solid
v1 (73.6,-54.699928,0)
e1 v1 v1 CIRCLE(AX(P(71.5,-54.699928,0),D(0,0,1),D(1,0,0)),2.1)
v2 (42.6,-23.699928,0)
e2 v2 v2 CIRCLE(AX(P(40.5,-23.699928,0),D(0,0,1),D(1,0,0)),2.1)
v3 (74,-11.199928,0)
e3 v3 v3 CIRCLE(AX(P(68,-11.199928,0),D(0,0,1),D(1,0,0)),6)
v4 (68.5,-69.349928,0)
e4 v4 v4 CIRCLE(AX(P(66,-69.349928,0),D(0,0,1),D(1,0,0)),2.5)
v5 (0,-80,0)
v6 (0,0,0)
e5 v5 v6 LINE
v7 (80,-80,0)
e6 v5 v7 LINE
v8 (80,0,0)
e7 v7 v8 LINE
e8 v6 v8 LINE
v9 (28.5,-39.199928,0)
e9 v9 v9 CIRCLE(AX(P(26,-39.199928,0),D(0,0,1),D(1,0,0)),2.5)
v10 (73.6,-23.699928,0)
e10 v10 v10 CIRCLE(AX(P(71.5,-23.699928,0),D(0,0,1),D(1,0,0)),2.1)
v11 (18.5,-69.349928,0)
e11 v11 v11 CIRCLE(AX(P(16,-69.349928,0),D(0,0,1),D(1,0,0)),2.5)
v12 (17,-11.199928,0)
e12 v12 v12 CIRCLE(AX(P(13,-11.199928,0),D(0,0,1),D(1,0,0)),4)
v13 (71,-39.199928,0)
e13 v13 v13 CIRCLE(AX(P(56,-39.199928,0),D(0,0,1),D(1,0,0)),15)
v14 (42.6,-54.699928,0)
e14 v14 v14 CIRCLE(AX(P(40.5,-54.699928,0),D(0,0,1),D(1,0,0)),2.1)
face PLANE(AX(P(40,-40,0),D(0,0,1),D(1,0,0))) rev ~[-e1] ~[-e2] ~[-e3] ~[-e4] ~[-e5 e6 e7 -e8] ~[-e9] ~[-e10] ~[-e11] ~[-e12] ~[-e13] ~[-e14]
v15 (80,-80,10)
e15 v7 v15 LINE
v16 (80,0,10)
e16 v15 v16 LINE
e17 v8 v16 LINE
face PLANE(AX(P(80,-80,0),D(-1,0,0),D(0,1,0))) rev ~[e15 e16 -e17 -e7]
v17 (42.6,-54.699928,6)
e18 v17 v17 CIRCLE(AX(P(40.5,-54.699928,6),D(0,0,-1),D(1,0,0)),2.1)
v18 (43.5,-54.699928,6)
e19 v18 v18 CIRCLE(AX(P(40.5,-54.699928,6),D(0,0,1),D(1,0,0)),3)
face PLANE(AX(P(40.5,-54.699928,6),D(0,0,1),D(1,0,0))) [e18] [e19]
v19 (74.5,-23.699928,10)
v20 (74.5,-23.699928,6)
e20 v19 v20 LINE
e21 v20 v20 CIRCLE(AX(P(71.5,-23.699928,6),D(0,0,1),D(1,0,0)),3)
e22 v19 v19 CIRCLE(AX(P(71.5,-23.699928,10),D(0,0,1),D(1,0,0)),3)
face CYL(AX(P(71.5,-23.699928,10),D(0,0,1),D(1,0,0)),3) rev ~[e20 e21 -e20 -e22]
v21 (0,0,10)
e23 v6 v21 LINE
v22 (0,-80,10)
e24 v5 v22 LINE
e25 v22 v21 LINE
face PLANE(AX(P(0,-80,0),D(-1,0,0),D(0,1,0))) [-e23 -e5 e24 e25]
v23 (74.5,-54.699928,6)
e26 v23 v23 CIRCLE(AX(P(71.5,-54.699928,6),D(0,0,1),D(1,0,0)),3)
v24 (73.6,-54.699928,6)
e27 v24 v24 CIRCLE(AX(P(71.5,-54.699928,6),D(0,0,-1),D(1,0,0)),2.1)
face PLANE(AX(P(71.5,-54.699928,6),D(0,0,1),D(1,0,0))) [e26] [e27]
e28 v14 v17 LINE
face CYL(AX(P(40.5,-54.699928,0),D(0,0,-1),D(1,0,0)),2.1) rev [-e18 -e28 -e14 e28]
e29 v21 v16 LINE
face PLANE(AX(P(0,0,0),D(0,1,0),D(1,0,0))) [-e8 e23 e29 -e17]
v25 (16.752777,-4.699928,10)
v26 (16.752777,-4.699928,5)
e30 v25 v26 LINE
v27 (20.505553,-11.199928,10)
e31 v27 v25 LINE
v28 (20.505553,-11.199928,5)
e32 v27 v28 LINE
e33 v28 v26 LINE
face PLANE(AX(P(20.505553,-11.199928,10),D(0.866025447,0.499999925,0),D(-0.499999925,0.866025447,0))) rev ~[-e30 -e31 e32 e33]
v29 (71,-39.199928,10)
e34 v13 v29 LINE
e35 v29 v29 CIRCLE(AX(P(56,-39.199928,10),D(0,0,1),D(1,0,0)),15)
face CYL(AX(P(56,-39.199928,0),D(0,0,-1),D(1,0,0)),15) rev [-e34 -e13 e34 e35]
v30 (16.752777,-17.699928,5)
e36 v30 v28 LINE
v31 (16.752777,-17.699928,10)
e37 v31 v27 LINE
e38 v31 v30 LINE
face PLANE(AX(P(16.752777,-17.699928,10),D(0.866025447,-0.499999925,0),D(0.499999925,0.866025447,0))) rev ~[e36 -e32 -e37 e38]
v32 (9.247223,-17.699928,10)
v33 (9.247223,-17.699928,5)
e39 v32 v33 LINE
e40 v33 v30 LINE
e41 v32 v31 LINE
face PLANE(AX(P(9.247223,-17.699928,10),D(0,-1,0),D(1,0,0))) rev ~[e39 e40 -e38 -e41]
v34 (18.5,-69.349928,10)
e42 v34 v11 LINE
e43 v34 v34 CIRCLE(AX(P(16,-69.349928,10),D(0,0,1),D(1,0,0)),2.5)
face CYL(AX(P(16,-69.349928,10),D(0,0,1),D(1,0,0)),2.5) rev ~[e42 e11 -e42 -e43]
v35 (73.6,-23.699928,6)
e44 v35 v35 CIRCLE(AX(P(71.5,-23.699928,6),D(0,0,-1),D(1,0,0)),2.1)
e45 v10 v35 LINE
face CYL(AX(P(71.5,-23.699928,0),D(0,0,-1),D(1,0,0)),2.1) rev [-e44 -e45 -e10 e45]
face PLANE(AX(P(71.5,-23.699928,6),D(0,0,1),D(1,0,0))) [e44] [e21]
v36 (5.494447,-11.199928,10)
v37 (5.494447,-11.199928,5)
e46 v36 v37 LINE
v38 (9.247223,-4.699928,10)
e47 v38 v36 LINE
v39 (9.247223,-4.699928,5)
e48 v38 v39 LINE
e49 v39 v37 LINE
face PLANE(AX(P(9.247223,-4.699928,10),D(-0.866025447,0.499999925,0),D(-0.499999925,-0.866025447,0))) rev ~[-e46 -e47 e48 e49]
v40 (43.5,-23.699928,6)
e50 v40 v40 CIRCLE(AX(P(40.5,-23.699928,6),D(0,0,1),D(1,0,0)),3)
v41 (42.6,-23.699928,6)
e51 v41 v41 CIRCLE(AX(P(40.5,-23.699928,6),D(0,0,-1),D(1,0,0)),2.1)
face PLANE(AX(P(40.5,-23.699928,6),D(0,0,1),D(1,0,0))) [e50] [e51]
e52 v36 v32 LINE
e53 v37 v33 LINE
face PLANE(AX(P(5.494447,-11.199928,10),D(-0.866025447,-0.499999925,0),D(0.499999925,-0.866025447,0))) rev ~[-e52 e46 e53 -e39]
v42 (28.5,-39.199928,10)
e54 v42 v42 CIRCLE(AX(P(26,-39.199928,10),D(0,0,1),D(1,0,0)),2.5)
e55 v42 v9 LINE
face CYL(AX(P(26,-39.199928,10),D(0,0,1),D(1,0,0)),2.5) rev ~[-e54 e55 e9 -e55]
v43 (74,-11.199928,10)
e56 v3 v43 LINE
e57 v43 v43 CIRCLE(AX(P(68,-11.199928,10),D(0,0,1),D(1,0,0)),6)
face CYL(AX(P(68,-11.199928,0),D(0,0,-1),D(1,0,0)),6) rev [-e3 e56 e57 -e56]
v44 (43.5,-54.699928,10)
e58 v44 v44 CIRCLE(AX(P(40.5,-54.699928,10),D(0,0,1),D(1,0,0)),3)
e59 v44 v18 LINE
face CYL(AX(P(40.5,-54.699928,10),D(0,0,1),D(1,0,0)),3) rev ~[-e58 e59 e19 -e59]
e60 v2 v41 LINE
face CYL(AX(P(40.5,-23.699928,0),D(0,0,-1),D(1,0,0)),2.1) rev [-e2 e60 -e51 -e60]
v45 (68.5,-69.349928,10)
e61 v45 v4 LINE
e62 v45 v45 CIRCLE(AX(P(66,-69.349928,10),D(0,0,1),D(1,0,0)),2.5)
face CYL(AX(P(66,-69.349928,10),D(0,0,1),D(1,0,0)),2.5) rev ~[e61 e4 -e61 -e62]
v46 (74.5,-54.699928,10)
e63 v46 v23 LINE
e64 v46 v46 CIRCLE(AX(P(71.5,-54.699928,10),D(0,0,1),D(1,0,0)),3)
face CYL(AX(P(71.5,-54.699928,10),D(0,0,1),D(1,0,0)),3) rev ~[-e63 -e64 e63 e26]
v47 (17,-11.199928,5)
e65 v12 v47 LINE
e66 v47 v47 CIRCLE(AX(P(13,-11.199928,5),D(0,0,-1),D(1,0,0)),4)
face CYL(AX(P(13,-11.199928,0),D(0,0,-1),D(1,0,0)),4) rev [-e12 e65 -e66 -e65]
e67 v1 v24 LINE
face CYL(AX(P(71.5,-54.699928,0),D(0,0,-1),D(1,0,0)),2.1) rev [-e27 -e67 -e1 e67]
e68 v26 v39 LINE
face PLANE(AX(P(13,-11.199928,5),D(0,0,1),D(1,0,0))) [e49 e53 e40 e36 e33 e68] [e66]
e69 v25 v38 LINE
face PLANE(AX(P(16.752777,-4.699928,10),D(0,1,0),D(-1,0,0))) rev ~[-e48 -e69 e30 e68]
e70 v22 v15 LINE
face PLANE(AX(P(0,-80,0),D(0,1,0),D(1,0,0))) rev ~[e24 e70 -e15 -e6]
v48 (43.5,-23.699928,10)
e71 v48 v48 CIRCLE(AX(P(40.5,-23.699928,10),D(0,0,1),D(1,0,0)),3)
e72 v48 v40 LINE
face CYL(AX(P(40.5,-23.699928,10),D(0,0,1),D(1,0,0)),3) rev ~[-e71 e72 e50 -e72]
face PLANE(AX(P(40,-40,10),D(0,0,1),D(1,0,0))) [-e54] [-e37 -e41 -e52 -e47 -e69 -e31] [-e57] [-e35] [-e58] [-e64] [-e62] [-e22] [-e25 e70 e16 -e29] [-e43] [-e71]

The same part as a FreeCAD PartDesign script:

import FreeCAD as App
import Part
import Sketcher

V = App.Vector
Q = App.Units.Quantity

doc = App.newDocument("Part")
params = doc.addObject("Spreadsheet::Sheet", "Params")
for row, (alias, value) in enumerate([
    ("sketch1_diameter", "30 mm"),
    ("sketch1_diameter2", "8 mm"),
    ("sketch1_diameter3", "12 mm"),
    ("sketch1_diameter4", "4.2 mm"),
    ("sketch1_width", "80 mm"),
    ("pad1_length", "10 mm"),
    ("sketch2_diameter", "5 mm"),
    ("pocket1_length", "25 mm"),
    ("sketch3_diameter", "6 mm"),
    ("pocket2_length", "4 mm"),
    ("pocket3_length", "5 mm"),
], start=1):
    params.set(f"A{row}", alias)
    params.set(f"B{row}", "=" + value)
    params.setAlias(f"B{row}", alias)

body = doc.addObject("PartDesign::Body", "Body")

sketch1 = body.newObject("Sketcher::SketchObject", "Sketch")
sketch1.AttachmentSupport = (doc.getObject("XY_Plane"), [""])
sketch1.MapMode = "FlatFace"
sketch1.addGeometry([
    Part.LineSegment(V(0, 0, 0), V(0, -80, 0)),
    Part.LineSegment(V(0, -80, 0), V(80, -80, 0)),
    Part.LineSegment(V(80, -80, 0), V(80, 0, 0)),
    Part.LineSegment(V(80, 0, 0), V(0, 0, 0)),
    Part.Circle(V(40.5, -54.7, 0), V(0, 0, 1), 2.1),
    Part.Circle(V(71.5, -54.7, 0), V(0, 0, 1), 2.1),
    Part.Circle(V(56, -39.2, 0), V(0, 0, 1), 15),
    Part.Circle(V(40.5, -23.7, 0), V(0, 0, 1), 2.1),
    Part.Circle(V(13, -11.2, 0), V(0, 0, 1), 4),
    Part.Circle(V(71.5, -23.7, 0), V(0, 0, 1), 2.1),
    Part.Circle(V(68, -11.2, 0), V(0, 0, 1), 6),
], False)
sketch1.addConstraint([
    Sketcher.Constraint("Coincident", 0, 2, 1, 1),
    Sketcher.Constraint("Coincident", 1, 2, 2, 1),
    Sketcher.Constraint("Coincident", 2, 2, 3, 1),
    Sketcher.Constraint("Coincident", 3, 2, 0, 1),
    Sketcher.Constraint("Vertical", 0),
    Sketcher.Constraint("Horizontal", 1),
    Sketcher.Constraint("Vertical", 2),
    Sketcher.Constraint("Horizontal", 3),
    Sketcher.Constraint("Coincident", 3, 2, -1, 1),
    Sketcher.Constraint("Equal", 4, 5),
    Sketcher.Constraint("Equal", 5, 7),
    Sketcher.Constraint("Equal", 7, 9),
    Sketcher.Constraint("Horizontal", 4, 3, 5, 3),
    Sketcher.Constraint("Horizontal", 7, 3, 9, 3),
    Sketcher.Constraint("Horizontal", 8, 3, 10, 3),
    Sketcher.Constraint("Vertical", 4, 3, 7, 3),
    Sketcher.Constraint("Vertical", 5, 3, 9, 3),
    Sketcher.Constraint("Equal", 3, 0),
    Sketcher.Constraint("Diameter", 6, 30.0),
    Sketcher.Constraint("Diameter", 8, 8.0),
    Sketcher.Constraint("Diameter", 10, 12.0),
    Sketcher.Constraint("Diameter", 4, 4.2),
    Sketcher.Constraint("DistanceX", 1, 1, 1, 2, 80.0),
    Sketcher.Constraint("DistanceX", -1, 1, 6, 3, 56.0),
    Sketcher.Constraint("DistanceX", -1, 1, 8, 3, 13.0),
    Sketcher.Constraint("DistanceX", -1, 1, 10, 3, 68.0),
    Sketcher.Constraint("DistanceX", 4, 3, 5, 3, 31.0),
    Sketcher.Constraint("DistanceY", 4, 3, 7, 3, 31.0),
    Sketcher.Constraint("DistanceY", 6, 3, 8, 3, 28.0),
    Sketcher.Constraint("DistanceX", -1, 1, 4, 3, 40.5),
    Sketcher.Constraint("DistanceY", 4, 3, 6, 3, 15.5),
    Sketcher.Constraint("DistanceY", 7, 3, -1, 1, 23.699928),
])
sketch1.setExpression("Constraints[18]", "Params.sketch1_diameter")
sketch1.setExpression("Constraints[19]", "Params.sketch1_diameter2")
sketch1.setExpression("Constraints[20]", "Params.sketch1_diameter3")
sketch1.setExpression("Constraints[21]", "Params.sketch1_diameter4")
sketch1.setExpression("Constraints[22]", "Params.sketch1_width")
pad1 = body.newObject("PartDesign::Pad", "Pad")
pad1.Profile = sketch1
pad1.setExpression("Length", "Params.pad1_length")

sketch2 = body.newObject("Sketcher::SketchObject", "Sketch001")
sketch2.AttachmentSupport = (doc.getObject("XY_Plane"), [""])
sketch2.MapMode = "FlatFace"
sketch2.AttachmentOffset = App.Placement(V(0, 0, 10), App.Rotation())
sketch2.addGeometry([
    Part.Circle(V(26, -39.2, 0), V(0, 0, 1), 2.5),
    Part.Circle(V(16, -69.3, 0), V(0, 0, 1), 2.5),
    Part.Circle(V(66, -69.3, 0), V(0, 0, 1), 2.5),
], False)
sketch2.addConstraint([
    Sketcher.Constraint("Equal", 0, 1),
    Sketcher.Constraint("Equal", 1, 2),
    Sketcher.Constraint("Horizontal", 1, 3, 2, 3),
    Sketcher.Constraint("Diameter", 0, 5.0),
    Sketcher.Constraint("DistanceX", -1, 1, 0, 3, 26.0),
    Sketcher.Constraint("DistanceX", -1, 1, 1, 3, 16.0),
    Sketcher.Constraint("DistanceX", -1, 1, 2, 3, 66.0),
    Sketcher.Constraint("DistanceY", 1, 3, 0, 3, 30.15),
    Sketcher.Constraint("DistanceY", 1, 3, -1, 1, 69.349928),
])
sketch2.setExpression("Constraints[3]", "Params.sketch2_diameter")
pocket1 = body.newObject("PartDesign::Pocket", "Pocket")
pocket1.Profile = sketch2
pocket1.setExpression("Length", "Params.pocket1_length")

sketch3 = body.newObject("Sketcher::SketchObject", "Sketch002")
sketch3.AttachmentSupport = (doc.getObject("XY_Plane"), [""])
sketch3.MapMode = "FlatFace"
sketch3.AttachmentOffset = App.Placement(V(0, 0, 10), App.Rotation())
sketch3.addGeometry([
    Part.Circle(V(40.5, -23.7, 0), V(0, 0, 1), 3),
    Part.Circle(V(71.5, -23.7, 0), V(0, 0, 1), 3),
    Part.Circle(V(40.5, -54.7, 0), V(0, 0, 1), 3),
    Part.Circle(V(71.5, -54.7, 0), V(0, 0, 1), 3),
], False)
sketch3.addConstraint([
    Sketcher.Constraint("Equal", 0, 1),
    Sketcher.Constraint("Equal", 1, 2),
    Sketcher.Constraint("Equal", 2, 3),
    Sketcher.Constraint("Horizontal", 0, 3, 1, 3),
    Sketcher.Constraint("Horizontal", 2, 3, 3, 3),
    Sketcher.Constraint("Vertical", 0, 3, 2, 3),
    Sketcher.Constraint("Vertical", 1, 3, 3, 3),
    Sketcher.Constraint("Diameter", 0, 6.0),
    Sketcher.Constraint("DistanceX", 0, 3, 1, 3, 31.0),
    Sketcher.Constraint("DistanceY", 2, 3, 0, 3, 31.0),
    Sketcher.Constraint("DistanceX", -1, 1, 0, 3, 40.5),
    Sketcher.Constraint("DistanceY", 0, 3, -1, 1, 23.699928),
])
sketch3.setExpression("Constraints[7]", "Params.sketch3_diameter")
pocket2 = body.newObject("PartDesign::Pocket", "Pocket001")
pocket2.Profile = sketch3
pocket2.setExpression("Length", "Params.pocket2_length")

sketch4 = body.newObject("Sketcher::SketchObject", "Sketch003")
sketch4.AttachmentSupport = (doc.getObject("XY_Plane"), [""])
sketch4.MapMode = "FlatFace"
sketch4.AttachmentOffset = App.Placement(V(0, 0, 10), App.Rotation())
sketch4.addGeometry([
    Part.LineSegment(V(17, -5, 0), V(9, -5, 0)),
    Part.LineSegment(V(9, -5, 0), V(5, -11, 0)),
    Part.LineSegment(V(5, -11, 0), V(9, -18, 0)),
    Part.LineSegment(V(9, -18, 0), V(17, -18, 0)),
    Part.LineSegment(V(17, -18, 0), V(21, -11, 0)),
    Part.LineSegment(V(21, -11, 0), V(17, -5, 0)),
], False)
sketch4.addConstraint([
    Sketcher.Constraint("Coincident", 0, 2, 1, 1),
    Sketcher.Constraint("Coincident", 1, 2, 2, 1),
    Sketcher.Constraint("Coincident", 2, 2, 3, 1),
    Sketcher.Constraint("Coincident", 3, 2, 4, 1),
    Sketcher.Constraint("Coincident", 4, 2, 5, 1),
    Sketcher.Constraint("Coincident", 5, 2, 0, 1),
    Sketcher.Constraint("Horizontal", 0),
    Sketcher.Constraint("Horizontal", 3),
    Sketcher.Constraint("Parallel", 1, 4),
    Sketcher.Constraint("Parallel", 2, 5),
    Sketcher.Constraint("Horizontal", 1, 2, 4, 2),
    Sketcher.Constraint("Vertical", 0, 2, 2, 2),
    Sketcher.Constraint("Vertical", 3, 2, 5, 2),
    Sketcher.Constraint("Angle", 1, Q("-119.999995 deg")),
    Sketcher.Constraint("DistanceY", 2, 2, 0, 2, 13.0),
    Sketcher.Constraint("DistanceX", 0, 2, 0, 1, 7.505554),
    Sketcher.Constraint("DistanceY", 2, 2, -1, 1, 17.699928),
    Sketcher.Constraint("DistanceX", -1, 1, 0, 2, 9.247223),
])
pocket3 = body.newObject("PartDesign::Pocket", "Pocket002")
pocket3.Profile = sketch4
pocket3.setExpression("Length", "Params.pocket3_length")

doc.recompute()
